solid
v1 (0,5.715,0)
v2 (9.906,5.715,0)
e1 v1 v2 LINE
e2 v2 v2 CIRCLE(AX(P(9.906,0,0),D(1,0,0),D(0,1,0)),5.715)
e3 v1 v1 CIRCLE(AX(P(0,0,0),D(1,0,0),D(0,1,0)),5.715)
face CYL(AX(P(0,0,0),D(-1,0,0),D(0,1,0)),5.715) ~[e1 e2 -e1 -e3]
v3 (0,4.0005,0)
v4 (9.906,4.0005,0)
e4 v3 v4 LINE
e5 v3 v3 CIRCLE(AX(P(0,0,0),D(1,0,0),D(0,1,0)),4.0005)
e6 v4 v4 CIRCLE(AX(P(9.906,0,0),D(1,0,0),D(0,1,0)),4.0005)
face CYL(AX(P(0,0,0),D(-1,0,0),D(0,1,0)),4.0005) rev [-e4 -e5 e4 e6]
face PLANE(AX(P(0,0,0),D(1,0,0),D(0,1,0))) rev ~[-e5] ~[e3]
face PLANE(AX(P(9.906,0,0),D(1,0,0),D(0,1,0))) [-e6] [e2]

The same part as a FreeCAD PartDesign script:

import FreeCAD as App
import Part
import Sketcher

V = App.Vector
Q = App.Units.Quantity

doc = App.newDocument("Part")
body = doc.addObject("PartDesign::Body", "Body")

# Sketch on YZ plane
sketch1 = body.newObject("Sketcher::SketchObject", "Sketch")
sketch1.AttachmentSupport = (doc.getObject("YZ_Plane"), [""])
sketch1.MapMode = "FlatFace"
sketch1.addGeometry([
    Part.Circle(V(0, 0, 0), V(0, 0, 1), 5.7),
    Part.Circle(V(0, 0, 0), V(0, 0, 1), 4),
], False)
sketch1.addConstraint([
    Sketcher.Constraint("Coincident", 0, 3, -1, 1),
    Sketcher.Constraint("Coincident", 1, 3, -1, 1),
    Sketcher.Constraint("Diameter", 0, Q("0.45 in")),
    Sketcher.Constraint("Diameter", 1, Q("0.315 in")),
])
pad1 = body.newObject("PartDesign::Pad", "Pad")
pad1.Profile = sketch1
pad1.Length = Q("0.39 in")

doc.recompute()
